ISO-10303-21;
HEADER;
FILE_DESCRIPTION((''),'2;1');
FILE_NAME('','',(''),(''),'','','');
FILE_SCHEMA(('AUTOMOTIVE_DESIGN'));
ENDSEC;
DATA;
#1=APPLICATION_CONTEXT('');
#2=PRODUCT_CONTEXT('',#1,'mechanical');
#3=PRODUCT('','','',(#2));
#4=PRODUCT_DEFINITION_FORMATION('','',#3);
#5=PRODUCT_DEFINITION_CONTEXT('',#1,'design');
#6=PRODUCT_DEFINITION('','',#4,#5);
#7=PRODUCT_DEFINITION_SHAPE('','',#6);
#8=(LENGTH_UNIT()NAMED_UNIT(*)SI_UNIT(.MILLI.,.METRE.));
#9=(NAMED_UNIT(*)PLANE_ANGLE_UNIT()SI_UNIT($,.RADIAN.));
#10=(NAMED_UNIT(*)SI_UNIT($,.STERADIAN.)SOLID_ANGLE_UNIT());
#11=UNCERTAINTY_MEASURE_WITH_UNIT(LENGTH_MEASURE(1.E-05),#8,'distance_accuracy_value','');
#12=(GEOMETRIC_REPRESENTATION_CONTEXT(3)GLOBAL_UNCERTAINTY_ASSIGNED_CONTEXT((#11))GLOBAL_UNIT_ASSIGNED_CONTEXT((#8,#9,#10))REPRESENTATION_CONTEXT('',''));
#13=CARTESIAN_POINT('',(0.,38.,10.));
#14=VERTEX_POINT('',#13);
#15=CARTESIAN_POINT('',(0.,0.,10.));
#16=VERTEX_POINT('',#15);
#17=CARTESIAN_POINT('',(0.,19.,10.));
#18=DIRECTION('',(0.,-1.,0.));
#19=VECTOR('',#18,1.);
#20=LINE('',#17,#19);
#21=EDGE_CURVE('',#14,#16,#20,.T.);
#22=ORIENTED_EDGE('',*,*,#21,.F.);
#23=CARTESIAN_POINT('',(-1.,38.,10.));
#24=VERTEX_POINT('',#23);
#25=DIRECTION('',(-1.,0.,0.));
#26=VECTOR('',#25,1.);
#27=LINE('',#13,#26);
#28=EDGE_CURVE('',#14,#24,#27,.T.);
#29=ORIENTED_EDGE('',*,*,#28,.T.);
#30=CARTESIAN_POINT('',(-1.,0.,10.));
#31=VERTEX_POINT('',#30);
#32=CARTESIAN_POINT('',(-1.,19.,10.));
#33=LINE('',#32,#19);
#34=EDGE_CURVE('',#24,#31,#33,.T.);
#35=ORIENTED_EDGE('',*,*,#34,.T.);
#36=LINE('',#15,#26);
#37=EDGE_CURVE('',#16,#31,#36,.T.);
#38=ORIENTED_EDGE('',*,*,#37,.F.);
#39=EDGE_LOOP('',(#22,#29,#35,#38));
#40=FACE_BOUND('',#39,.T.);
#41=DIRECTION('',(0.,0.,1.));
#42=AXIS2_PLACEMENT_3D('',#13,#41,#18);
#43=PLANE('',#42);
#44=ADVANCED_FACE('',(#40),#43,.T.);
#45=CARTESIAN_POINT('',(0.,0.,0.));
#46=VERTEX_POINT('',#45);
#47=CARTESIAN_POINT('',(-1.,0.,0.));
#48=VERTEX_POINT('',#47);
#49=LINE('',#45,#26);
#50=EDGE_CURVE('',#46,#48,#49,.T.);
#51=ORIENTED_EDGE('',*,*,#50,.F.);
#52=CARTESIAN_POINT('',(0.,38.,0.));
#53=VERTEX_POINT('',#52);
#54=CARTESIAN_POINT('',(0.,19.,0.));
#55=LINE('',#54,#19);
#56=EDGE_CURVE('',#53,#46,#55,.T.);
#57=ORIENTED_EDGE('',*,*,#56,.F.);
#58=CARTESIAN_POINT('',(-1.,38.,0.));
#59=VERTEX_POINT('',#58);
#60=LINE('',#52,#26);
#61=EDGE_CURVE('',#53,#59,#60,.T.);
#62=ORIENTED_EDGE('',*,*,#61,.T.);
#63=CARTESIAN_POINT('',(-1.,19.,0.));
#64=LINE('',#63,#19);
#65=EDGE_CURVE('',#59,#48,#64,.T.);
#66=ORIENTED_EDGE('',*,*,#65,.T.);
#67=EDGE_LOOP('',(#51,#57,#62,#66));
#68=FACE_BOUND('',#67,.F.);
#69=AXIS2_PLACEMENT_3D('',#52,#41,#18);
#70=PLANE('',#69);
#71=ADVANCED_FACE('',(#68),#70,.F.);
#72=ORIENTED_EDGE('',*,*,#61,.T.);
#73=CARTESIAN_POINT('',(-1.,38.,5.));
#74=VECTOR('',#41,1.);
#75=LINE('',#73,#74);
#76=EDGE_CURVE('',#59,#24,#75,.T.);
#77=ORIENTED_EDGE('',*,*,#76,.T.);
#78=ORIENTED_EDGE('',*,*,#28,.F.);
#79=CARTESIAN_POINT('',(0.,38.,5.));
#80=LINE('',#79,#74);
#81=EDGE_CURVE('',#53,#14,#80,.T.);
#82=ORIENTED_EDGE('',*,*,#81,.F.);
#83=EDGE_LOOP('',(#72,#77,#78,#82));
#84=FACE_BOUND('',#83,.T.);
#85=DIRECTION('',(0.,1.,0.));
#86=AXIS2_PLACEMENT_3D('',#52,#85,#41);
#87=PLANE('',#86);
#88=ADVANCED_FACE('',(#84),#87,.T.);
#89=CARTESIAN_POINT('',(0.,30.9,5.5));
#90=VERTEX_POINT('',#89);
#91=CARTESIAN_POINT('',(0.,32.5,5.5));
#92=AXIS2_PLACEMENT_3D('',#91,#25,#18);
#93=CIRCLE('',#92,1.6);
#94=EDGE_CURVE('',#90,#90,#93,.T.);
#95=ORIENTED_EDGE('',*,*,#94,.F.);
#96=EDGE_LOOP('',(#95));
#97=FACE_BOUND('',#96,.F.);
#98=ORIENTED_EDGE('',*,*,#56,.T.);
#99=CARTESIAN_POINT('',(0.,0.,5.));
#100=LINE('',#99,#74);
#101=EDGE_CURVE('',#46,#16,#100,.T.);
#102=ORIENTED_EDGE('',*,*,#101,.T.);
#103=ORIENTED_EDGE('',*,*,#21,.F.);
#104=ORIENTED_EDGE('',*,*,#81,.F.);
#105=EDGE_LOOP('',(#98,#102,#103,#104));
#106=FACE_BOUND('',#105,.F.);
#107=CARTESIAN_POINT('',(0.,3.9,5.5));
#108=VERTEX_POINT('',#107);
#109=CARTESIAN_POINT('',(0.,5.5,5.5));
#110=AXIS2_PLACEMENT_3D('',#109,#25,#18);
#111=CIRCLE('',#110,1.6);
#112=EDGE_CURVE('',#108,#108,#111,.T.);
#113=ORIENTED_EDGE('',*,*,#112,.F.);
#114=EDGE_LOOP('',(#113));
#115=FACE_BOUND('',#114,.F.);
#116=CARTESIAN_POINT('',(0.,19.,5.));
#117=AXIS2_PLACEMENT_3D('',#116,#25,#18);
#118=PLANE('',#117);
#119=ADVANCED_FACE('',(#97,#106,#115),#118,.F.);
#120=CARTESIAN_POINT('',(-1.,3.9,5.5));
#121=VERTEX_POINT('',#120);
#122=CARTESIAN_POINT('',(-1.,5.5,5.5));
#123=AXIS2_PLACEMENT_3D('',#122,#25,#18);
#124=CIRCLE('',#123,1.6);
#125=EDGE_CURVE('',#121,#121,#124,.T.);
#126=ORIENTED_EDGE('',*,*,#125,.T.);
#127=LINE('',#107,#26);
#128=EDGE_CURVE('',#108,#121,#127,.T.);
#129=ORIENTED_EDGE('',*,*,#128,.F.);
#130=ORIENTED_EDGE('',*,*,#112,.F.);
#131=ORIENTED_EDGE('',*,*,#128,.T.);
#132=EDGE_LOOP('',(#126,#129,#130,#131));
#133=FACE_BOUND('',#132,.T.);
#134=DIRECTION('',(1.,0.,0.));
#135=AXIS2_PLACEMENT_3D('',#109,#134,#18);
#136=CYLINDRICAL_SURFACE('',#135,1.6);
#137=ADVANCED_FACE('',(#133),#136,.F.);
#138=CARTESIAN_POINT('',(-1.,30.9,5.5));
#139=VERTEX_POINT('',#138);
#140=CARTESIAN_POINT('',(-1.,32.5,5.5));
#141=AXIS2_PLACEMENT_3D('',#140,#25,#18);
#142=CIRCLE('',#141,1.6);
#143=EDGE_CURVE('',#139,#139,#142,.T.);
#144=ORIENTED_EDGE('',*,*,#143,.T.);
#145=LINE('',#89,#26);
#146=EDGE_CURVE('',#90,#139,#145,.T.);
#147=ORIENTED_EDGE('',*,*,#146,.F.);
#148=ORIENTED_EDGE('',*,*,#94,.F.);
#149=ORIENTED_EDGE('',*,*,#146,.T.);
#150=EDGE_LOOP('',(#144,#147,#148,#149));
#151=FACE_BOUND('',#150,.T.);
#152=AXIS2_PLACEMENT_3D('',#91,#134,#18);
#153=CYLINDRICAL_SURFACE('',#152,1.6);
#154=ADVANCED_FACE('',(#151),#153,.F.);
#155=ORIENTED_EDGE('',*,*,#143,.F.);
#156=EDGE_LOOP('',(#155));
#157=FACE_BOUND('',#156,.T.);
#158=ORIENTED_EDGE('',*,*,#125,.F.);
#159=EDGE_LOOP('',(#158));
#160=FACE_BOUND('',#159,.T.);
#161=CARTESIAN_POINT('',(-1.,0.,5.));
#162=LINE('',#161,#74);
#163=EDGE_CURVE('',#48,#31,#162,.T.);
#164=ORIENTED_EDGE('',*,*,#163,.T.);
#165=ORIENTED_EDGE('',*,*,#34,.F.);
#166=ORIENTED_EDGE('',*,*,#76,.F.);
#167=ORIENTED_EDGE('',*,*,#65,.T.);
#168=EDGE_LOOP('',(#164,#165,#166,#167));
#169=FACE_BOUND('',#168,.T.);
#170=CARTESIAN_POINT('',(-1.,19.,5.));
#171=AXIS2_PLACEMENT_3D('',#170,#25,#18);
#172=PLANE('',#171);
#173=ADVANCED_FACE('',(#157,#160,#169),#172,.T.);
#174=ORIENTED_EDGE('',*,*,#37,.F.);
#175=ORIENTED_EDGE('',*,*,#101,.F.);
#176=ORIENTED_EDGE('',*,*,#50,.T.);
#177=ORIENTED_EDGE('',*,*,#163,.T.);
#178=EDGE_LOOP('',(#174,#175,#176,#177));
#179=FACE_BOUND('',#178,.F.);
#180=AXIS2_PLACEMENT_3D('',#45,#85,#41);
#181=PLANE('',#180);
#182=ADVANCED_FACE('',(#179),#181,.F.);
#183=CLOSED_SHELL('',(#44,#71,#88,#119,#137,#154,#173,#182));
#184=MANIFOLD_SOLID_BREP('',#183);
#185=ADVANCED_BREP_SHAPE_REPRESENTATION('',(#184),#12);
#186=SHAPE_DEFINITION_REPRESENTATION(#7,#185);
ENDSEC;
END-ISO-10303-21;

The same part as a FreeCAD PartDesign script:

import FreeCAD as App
import Part
import Sketcher
Q = App.Units.Quantity

doc = App.newDocument("Part")
body = doc.addObject("PartDesign::Body", "Body")

sketch1 = body.newObject("Sketcher::SketchObject", "Sketch")
sketch1.AttachmentSupport = (doc.getObject("YZ_Plane"), [""])
sketch1.MapMode = "FlatFace"
sketch1.addGeometry([
    Part.LineSegment(App.Vector(38, 10, 0), App.Vector(38, 0, 0)),
    Part.LineSegment(App.Vector(38, 0, 0), App.Vector(0, 0, 0)),
    Part.LineSegment(App.Vector(0, 0, 0), App.Vector(0, 10, 0)),
    Part.LineSegment(App.Vector(0, 10, 0), App.Vector(38, 10, 0)),
    Part.Circle(App.Vector(32.5, 5.5, 0), App.Vector(0, 0, 1), 1.6),
    Part.Circle(App.Vector(5.5, 5.5, 0), App.Vector(0, 0, 1), 1.6),
], False)
sketch1.addConstraint([
    Sketcher.Constraint("Coincident", 0, 2, 1, 1),
    Sketcher.Constraint("Coincident", 1, 2, 2, 1),
    Sketcher.Constraint("Coincident", 2, 2, 3, 1),
    Sketcher.Constraint("Coincident", 3, 2, 0, 1),
    Sketcher.Constraint("Vertical", 0),
    Sketcher.Constraint("Horizontal", 1),
    Sketcher.Constraint("Vertical", 2),
    Sketcher.Constraint("Horizontal", 3),
    Sketcher.Constraint("Coincident", 1, 2, -1, 1),
    Sketcher.Constraint("Equal", 4, 5),
    Sketcher.Constraint("Horizontal", 4, 3, 5, 3),
    Sketcher.Constraint("Diameter", 4, Q("3.2 mm")),
    Sketcher.Constraint("DistanceX", 1, 2, 1, 1, Q("38 mm")),
    Sketcher.Constraint("DistanceY", 0, 2, 0, 1, Q("10 mm")),
    Sketcher.Constraint("DistanceX", 5, 3, 4, 3, Q("27 mm")),
    Sketcher.Constraint("DistanceX", -1, 1, 4, 3, Q("32.5 mm")),
    Sketcher.Constraint("DistanceY", -1, 1, 4, 3, Q("5.5 mm")),
])
pad1 = body.newObject("PartDesign::Pad", "Pad")
pad1.Profile = sketch1
pad1.Length = 1
pad1.Reversed = True

doc.recompute()
